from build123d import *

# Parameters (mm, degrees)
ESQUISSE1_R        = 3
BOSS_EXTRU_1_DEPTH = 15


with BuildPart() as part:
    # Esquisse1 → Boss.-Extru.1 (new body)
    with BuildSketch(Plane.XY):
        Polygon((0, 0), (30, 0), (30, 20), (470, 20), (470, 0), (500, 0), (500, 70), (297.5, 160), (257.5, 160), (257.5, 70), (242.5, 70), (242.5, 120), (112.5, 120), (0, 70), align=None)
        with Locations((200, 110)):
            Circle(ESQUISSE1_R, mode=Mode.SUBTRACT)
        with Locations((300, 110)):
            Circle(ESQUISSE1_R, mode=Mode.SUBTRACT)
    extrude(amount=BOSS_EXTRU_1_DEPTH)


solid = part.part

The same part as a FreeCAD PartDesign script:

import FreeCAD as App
import Part
import Sketcher

V = App.Vector
Q = App.Units.Quantity


def add_polygon(sketch, points):
    """Adds a closed chain of lines whose ends are joined by coincident constraints."""
    first, n = sketch.GeometryCount, len(points)
    for a, b in zip(points, points[1:] + points[:1]):
        sketch.addGeometry(Part.LineSegment(App.Vector(*a, 0), App.Vector(*b, 0)), False)
    for i in range(n):
        sketch.addConstraint(Sketcher.Constraint("Coincident", first + i, 2, first + (i + 1) % n, 1))

doc = App.newDocument("Part")
body = doc.addObject("PartDesign::Body", "Body")

# Sketch on XY plane
sketch1 = body.newObject("Sketcher::SketchObject", "Sketch")
sketch1.AttachmentSupport = (doc.getObject("XY_Plane"), [""])
sketch1.MapMode = "FlatFace"
add_polygon(sketch1, [(0, 0), (30, 0), (30, 20), (470, 20), (470, 0), (500, 0), (500, 70), (297.5, 160), (257.5, 160), (257.5, 70), (242.5, 70), (242.5, 120), (112.5, 120), (0, 70)])  # lines 0-13
sketch1.addGeometry(Part.Circle(V(200, 110, 0), V(0, 0, 1), 3), False)  # 14
sketch1.addGeometry(Part.Circle(V(300, 110, 0), V(0, 0, 1), 3), False)  # 15
sketch1.addConstraint(Sketcher.Constraint("Horizontal", 0))
sketch1.addConstraint(Sketcher.Constraint("Vertical", 1))
sketch1.addConstraint(Sketcher.Constraint("Horizontal", 2))
sketch1.addConstraint(Sketcher.Constraint("Vertical", 3))
sketch1.addConstraint(Sketcher.Constraint("Horizontal", 4))
sketch1.addConstraint(Sketcher.Constraint("Vertical", 5))
sketch1.addConstraint(Sketcher.Constraint("Horizontal", 7))
sketch1.addConstraint(Sketcher.Constraint("Vertical", 8))
sketch1.addConstraint(Sketcher.Constraint("Horizontal", 9))
sketch1.addConstraint(Sketcher.Constraint("Vertical", 10))
sketch1.addConstraint(Sketcher.Constraint("Horizontal", 11))
sketch1.addConstraint(Sketcher.Constraint("Vertical", 13))
sketch1.addConstraint(Sketcher.Constraint("Coincident", 13, 2, -1, 1))
sketch1.addConstraint(Sketcher.Constraint("Equal", 14, 15))
sketch1.addConstraint(Sketcher.Constraint("PointOnObject", 3, 2, -1))
sketch1.addConstraint(Sketcher.Constraint("Horizontal", 14, 3, 15, 3))
sketch1.addConstraint(Sketcher.Constraint("Horizontal", 5, 2, 8, 2))
sketch1.addConstraint(Sketcher.Constraint("Horizontal", 9, 2, 12, 2))
sketch1.addConstraint(Sketcher.Constraint("Equal", 0, 4))
sketch1.addConstraint(Sketcher.Constraint("Diameter", 14, Q("6 mm")))
sketch1.addConstraint(Sketcher.Constraint("DistanceX", 0, 1, 0, 2, Q("30 mm")))
sketch1.addConstraint(Sketcher.Constraint("DistanceX", 2, 1, 2, 2, Q("440 mm")))
sketch1.addConstraint(Sketcher.Constraint("DistanceX", 7, 2, 7, 1, Q("40 mm")))
sketch1.addConstraint(Sketcher.Constraint("DistanceX", 9, 2, 9, 1, Q("15 mm")))
sketch1.addConstraint(Sketcher.Constraint("DistanceX", 11, 2, 11, 1, Q("130 mm")))
sketch1.addConstraint(Sketcher.Constraint("DistanceY", 1, 1, 1, 2, Q("20 mm")))
sketch1.addConstraint(Sketcher.Constraint("DistanceY", 5, 1, 5, 2, Q("70 mm")))
sketch1.addConstraint(Sketcher.Constraint("DistanceY", 8, 2, 8, 1, Q("90 mm")))
sketch1.addConstraint(Sketcher.Constraint("DistanceY", 10, 1, 10, 2, Q("50 mm")))
sketch1.addConstraint(Sketcher.Constraint("DistanceX", -1, 1, 14, 3, Q("200 mm")))
sketch1.addConstraint(Sketcher.Constraint("DistanceY", -1, 1, 14, 3, Q("110 mm")))
sketch1.addConstraint(Sketcher.Constraint("DistanceX", -1, 1, 15, 3, Q("300 mm")))
sketch1.addConstraint(Sketcher.Constraint("DistanceX", -1, 1, 6, 2, Q("297.5 mm")))
pad1 = body.newObject("PartDesign::Pad", "Pad")
pad1.Profile = sketch1
pad1.Length = 15

doc.recompute()
